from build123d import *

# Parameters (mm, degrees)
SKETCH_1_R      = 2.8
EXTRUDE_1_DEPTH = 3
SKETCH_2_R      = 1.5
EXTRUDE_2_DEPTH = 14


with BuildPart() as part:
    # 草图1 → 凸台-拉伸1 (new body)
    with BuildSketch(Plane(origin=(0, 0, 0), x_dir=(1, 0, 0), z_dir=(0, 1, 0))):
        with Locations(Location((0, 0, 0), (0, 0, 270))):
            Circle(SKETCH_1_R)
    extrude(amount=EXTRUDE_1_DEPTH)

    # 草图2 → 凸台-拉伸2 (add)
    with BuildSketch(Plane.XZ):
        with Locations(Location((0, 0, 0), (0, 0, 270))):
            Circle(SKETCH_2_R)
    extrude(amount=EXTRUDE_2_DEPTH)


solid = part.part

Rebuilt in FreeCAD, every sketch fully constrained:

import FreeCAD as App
import Part
import Sketcher
Q = App.Units.Quantity

doc = App.newDocument("Part")
body = doc.addObject("PartDesign::Body", "Body")

# Sketch on XZ plane
sketch1 = body.newObject("Sketcher::SketchObject", "Sketch")
sketch1.AttachmentSupport = (doc.getObject("XZ_Plane"), [""])
sketch1.MapMode = "FlatFace"
sketch1.addGeometry(Part.Circle(App.Vector(0, 0, 0), App.Vector(0, 0, 1), 2.8), False)
sketch1.addConstraint([
    Sketcher.Constraint("Coincident", 0, 3, -1, 1),
    Sketcher.Constraint("Diameter", 0, Q("5.6 mm")),
])
pad1 = body.newObject("PartDesign::Pad", "Pad")
pad1.Profile = sketch1
pad1.Length = 3
pad1.Reversed = True

# Sketch on XZ plane
sketch2 = body.newObject("Sketcher::SketchObject", "Sketch001")
sketch2.AttachmentSupport = (doc.getObject("XZ_Plane"), [""])
sketch2.MapMode = "FlatFace"
sketch2.addGeometry(Part.Circle(App.Vector(0, 0, 0), App.Vector(0, 0, 1), 1.5), False)
sketch2.addConstraint([
    Sketcher.Constraint("Coincident", 0, 3, -1, 1),
    Sketcher.Constraint("Diameter", 0, Q("3 mm")),
])
pad2 = body.newObject("PartDesign::Pad", "Pad001")
pad2.Profile = sketch2
pad2.Length = 14

doc.recompute()
